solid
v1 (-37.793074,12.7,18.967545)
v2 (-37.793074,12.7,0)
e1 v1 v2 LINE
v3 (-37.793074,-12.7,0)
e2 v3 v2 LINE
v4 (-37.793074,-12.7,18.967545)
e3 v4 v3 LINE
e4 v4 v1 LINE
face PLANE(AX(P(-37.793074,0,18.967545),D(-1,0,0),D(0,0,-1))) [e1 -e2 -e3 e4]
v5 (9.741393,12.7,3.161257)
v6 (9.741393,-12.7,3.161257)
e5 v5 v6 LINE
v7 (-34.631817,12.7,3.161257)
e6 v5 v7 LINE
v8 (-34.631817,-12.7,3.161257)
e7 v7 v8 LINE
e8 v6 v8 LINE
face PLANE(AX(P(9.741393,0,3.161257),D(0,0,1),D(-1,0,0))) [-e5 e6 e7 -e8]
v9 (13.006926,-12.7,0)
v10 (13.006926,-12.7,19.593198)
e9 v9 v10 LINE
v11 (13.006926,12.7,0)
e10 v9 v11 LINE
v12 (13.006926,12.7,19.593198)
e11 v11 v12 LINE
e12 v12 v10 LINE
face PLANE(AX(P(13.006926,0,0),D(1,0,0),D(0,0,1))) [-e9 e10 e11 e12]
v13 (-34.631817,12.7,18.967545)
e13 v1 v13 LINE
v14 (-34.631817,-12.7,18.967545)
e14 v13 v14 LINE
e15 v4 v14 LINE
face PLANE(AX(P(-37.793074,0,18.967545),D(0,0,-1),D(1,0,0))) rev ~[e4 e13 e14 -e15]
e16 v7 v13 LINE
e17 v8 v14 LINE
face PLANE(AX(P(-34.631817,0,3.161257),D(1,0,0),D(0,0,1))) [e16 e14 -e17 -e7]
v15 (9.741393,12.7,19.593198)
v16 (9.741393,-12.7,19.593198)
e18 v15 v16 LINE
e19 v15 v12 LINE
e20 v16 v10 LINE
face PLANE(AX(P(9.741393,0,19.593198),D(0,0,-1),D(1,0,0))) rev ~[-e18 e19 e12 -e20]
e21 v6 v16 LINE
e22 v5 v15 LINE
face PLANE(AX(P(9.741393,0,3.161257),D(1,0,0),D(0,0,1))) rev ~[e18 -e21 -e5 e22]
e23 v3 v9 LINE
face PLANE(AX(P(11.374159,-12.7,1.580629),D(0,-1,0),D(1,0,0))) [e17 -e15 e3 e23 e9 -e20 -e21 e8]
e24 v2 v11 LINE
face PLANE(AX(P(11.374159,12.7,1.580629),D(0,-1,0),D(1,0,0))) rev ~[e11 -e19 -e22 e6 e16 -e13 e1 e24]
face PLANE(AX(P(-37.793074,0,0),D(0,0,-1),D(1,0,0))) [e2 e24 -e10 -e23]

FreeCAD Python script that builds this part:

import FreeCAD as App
import Part
import Sketcher
Q = App.Units.Quantity

doc = App.newDocument("Part")
params = doc.addObject("Spreadsheet::Sheet", "Params")
for row, (alias, value) in enumerate([
    ("sketch1_width", "2 in"),
    ("pad1_length", "1 in"),
], start=1):
    params.set(f"A{row}", alias)
    params.set(f"B{row}", "=" + value)
    params.setAlias(f"B{row}", alias)

body = doc.addObject("PartDesign::Body", "Body")

# Sketch on XZ plane
sketch1 = doc.addObject("Sketcher::SketchObject", "Sketch")
body.addObject(sketch1)
sketch1.AttachmentSupport = (doc.XZ_Plane, [""])
sketch1.MapMode = "FlatFace"
sketch1.addGeometry(Part.LineSegment(App.Vector(13, 0, 0), App.Vector(13, 19.6, 0)), False)
sketch1.addGeometry(Part.LineSegment(App.Vector(13, 19.6, 0), App.Vector(9.7, 19.6, 0)), False)
sketch1.addGeometry(Part.LineSegment(App.Vector(9.7, 19.6, 0), App.Vector(9.7, 3.2, 0)), False)
sketch1.addGeometry(Part.LineSegment(App.Vector(9.7, 3.2, 0), App.Vector(-34.6, 3.2, 0)), False)
sketch1.addGeometry(Part.LineSegment(App.Vector(-34.6, 3.2, 0), App.Vector(-34.6, 19, 0)), False)
sketch1.addGeometry(Part.LineSegment(App.Vector(-34.6, 19, 0), App.Vector(-37.8, 19, 0)), False)
sketch1.addGeometry(Part.LineSegment(App.Vector(-37.8, 19, 0), App.Vector(-37.8, 0, 0)), False)
sketch1.addGeometry(Part.LineSegment(App.Vector(-37.8, 0, 0), App.Vector(13, 0, 0)), False)
sketch1.addConstraint(Sketcher.Constraint("Coincident", 0, 2, 1, 1))
sketch1.addConstraint(Sketcher.Constraint("Coincident", 1, 2, 2, 1))
sketch1.addConstraint(Sketcher.Constraint("Coincident", 2, 2, 3, 1))
sketch1.addConstraint(Sketcher.Constraint("Coincident", 3, 2, 4, 1))
sketch1.addConstraint(Sketcher.Constraint("Coincident", 4, 2, 5, 1))
sketch1.addConstraint(Sketcher.Constraint("Coincident", 5, 2, 6, 1))
sketch1.addConstraint(Sketcher.Constraint("Coincident", 6, 2, 7, 1))
sketch1.addConstraint(Sketcher.Constraint("Coincident", 7, 2, 0, 1))
sketch1.addConstraint(Sketcher.Constraint("Vertical", 0))
sketch1.addConstraint(Sketcher.Constraint("Horizontal", 1))
sketch1.addConstraint(Sketcher.Constraint("Vertical", 2))
sketch1.addConstraint(Sketcher.Constraint("Horizontal", 3))
sketch1.addConstraint(Sketcher.Constraint("Vertical", 4))
sketch1.addConstraint(Sketcher.Constraint("Horizontal", 5))
sketch1.addConstraint(Sketcher.Constraint("Vertical", 6))
sketch1.addConstraint(Sketcher.Constraint("Horizontal", 7))
sketch1.addConstraint(Sketcher.Constraint("PointOnObject", 6, 2, -1))
sketch1.addConstraint(Sketcher.Constraint("DistanceX", 7, 1, 7, 2, Q("2 in")))
sketch1.addConstraint(Sketcher.Constraint("DistanceX", 3, 2, 3, 1, 44.37321))
sketch1.addConstraint(Sketcher.Constraint("DistanceY", 2, 2, 2, 1, 16.43194))
sketch1.addConstraint(Sketcher.Constraint("DistanceX", 1, 2, 1, 1, 3.265533))
sketch1.addConstraint(Sketcher.Constraint("DistanceY", 0, 1, 0, 2, 19.593198))
sketch1.addConstraint(Sketcher.Constraint("DistanceY", 4, 1, 4, 2, 15.806287))
sketch1.addConstraint(Sketcher.Constraint("DistanceX", -1, 1, 0, 2, 13.006926))
sketch1.setExpression("Constraints[17]", "Params.sketch1_width")
pad1 = doc.addObject("PartDesign::Pad", "Pad")
body.addObject(pad1)
pad1.Profile = sketch1
pad1.setExpression("Length", "Params.pad1_length")
pad1.Midplane = True

doc.recompute()
